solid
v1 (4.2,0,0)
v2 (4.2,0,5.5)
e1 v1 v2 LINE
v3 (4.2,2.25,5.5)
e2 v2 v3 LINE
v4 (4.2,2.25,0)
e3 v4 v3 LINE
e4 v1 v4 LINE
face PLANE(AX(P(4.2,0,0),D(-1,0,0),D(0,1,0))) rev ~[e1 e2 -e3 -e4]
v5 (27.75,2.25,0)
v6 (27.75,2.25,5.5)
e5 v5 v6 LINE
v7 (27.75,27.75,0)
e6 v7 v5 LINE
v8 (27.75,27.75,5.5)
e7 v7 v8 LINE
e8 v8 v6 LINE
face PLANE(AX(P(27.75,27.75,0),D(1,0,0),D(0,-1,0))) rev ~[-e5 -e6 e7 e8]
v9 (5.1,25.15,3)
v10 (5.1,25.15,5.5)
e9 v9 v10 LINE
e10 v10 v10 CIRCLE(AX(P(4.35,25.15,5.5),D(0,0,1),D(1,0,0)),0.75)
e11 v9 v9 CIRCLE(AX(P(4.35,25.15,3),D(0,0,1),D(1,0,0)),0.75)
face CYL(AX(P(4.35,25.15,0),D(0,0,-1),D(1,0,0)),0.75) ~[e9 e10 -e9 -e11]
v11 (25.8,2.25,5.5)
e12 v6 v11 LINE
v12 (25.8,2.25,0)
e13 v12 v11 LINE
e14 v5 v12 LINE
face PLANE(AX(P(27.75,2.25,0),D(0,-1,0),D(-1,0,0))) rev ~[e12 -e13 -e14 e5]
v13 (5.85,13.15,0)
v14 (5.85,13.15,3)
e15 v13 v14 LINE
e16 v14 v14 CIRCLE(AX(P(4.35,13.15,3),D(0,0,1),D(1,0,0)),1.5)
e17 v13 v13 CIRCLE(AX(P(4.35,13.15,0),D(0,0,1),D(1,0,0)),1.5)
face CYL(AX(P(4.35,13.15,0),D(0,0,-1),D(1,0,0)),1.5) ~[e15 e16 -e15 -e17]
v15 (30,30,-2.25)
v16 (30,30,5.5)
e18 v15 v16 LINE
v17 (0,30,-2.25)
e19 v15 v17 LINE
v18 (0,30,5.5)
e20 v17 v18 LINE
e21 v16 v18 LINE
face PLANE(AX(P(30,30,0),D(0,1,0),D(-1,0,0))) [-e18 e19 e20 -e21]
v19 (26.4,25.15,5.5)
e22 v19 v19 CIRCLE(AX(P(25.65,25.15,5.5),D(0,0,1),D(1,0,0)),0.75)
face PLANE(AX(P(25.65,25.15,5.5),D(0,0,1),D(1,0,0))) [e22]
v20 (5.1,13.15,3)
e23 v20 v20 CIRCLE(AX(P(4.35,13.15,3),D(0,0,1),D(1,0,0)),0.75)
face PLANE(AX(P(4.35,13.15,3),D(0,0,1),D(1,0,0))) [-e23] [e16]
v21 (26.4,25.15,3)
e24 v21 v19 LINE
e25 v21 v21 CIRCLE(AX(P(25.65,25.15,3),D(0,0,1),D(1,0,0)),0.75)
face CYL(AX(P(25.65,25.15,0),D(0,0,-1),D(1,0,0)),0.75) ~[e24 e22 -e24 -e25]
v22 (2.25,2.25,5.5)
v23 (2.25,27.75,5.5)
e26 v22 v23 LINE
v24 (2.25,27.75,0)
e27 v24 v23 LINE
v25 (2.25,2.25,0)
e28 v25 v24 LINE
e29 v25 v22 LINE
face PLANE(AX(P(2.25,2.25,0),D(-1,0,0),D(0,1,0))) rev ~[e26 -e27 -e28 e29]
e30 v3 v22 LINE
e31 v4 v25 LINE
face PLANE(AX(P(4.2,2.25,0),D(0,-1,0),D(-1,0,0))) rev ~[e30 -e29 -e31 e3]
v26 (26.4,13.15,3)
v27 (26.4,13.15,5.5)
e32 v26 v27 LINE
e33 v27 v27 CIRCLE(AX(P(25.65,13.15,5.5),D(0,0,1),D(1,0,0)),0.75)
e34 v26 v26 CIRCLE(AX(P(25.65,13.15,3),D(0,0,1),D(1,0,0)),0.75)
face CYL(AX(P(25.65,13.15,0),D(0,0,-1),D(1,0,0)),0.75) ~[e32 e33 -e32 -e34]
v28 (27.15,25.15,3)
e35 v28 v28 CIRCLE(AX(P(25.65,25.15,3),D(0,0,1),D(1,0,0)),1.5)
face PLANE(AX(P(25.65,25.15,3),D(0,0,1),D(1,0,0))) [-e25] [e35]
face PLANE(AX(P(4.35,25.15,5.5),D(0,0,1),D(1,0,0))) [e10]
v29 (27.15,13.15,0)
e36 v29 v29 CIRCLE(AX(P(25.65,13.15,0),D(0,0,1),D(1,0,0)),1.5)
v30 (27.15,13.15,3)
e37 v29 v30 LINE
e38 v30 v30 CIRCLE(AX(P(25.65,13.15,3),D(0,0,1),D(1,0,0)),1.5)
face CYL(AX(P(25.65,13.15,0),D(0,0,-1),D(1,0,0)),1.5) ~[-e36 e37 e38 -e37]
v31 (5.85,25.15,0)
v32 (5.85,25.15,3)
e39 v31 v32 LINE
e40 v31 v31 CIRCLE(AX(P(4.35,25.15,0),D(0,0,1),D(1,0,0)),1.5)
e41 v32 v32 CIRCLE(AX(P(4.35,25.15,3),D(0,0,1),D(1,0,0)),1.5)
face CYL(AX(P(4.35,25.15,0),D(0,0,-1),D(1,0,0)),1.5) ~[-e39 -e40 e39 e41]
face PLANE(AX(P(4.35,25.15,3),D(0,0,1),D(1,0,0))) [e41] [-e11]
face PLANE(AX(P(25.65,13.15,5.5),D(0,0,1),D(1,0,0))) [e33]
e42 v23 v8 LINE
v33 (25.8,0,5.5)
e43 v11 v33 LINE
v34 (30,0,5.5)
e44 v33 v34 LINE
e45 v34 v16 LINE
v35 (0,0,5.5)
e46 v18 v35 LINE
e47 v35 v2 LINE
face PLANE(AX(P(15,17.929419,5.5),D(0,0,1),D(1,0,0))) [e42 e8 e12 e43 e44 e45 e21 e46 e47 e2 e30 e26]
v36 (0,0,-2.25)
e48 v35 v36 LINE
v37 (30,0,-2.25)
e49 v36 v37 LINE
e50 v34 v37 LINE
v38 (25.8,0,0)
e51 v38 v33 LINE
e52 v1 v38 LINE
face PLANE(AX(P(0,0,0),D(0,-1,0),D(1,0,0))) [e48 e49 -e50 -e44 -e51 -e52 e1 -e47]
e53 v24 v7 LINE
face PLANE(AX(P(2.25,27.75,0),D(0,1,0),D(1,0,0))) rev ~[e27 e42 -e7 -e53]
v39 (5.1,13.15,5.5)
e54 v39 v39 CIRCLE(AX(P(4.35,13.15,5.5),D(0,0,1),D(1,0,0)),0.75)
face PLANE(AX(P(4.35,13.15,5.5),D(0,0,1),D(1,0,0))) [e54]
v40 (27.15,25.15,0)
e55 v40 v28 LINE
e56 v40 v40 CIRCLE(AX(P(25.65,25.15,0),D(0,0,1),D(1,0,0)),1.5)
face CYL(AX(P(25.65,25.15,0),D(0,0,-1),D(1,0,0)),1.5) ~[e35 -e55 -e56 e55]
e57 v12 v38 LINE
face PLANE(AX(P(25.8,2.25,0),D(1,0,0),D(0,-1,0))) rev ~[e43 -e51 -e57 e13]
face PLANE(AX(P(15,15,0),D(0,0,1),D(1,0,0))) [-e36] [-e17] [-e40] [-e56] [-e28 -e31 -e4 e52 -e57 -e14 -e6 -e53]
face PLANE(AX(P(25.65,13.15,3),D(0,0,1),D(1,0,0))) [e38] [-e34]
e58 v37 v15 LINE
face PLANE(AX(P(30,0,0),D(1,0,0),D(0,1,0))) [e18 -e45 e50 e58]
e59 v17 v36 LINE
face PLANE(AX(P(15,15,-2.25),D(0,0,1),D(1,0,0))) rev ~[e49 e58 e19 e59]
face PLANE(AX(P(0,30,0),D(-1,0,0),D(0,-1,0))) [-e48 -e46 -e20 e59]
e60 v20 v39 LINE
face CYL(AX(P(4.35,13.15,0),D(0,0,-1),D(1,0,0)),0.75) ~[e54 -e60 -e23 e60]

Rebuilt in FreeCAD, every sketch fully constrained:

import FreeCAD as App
import Part
import Sketcher
from FreeCAD import Vector
Q = App.Units.Quantity

doc = App.newDocument("Part")
body = doc.addObject("PartDesign::Body", "Body")

# Sketch on XY plane
sketch1 = body.newObject("Sketcher::SketchObject", "Sketch")
sketch1.AttachmentSupport = (doc.getObject("XY_Plane"), [""])
sketch1.MapMode = "FlatFace"
sketch1.addGeometry([
    Part.LineSegment(Vector(0, 30, 0), Vector(0, 0, 0)),  # 0
    Part.LineSegment(Vector(0, 0, 0), Vector(4.2, 0, 0)),  # 1
    Part.LineSegment(Vector(4.2, 0, 0), Vector(4.2, 2.25, 0)),  # 2
    Part.LineSegment(Vector(4.2, 2.25, 0), Vector(2.25, 2.25, 0)),  # 3
    Part.LineSegment(Vector(2.25, 2.25, 0), Vector(2.25, 27.75, 0)),  # 4
    Part.LineSegment(Vector(2.25, 27.75, 0), Vector(27.75, 27.75, 0)),  # 5
    Part.LineSegment(Vector(27.75, 27.75, 0), Vector(27.75, 2.25, 0)),  # 6
    Part.LineSegment(Vector(27.75, 2.25, 0), Vector(25.8, 2.25, 0)),  # 7
    Part.LineSegment(Vector(25.8, 2.25, 0), Vector(25.8, 0, 0)),  # 8
    Part.LineSegment(Vector(25.8, 0, 0), Vector(30, 0, 0)),  # 9
    Part.LineSegment(Vector(30, 0, 0), Vector(30, 30, 0)),  # 10
    Part.LineSegment(Vector(30, 30, 0), Vector(0, 30, 0)),  # 11
], False)
sketch1.addConstraint([
    Sketcher.Constraint("Coincident", 0, 2, 1, 1),
    Sketcher.Constraint("Coincident", 1, 2, 2, 1),
    Sketcher.Constraint("Coincident", 2, 2, 3, 1),
    Sketcher.Constraint("Coincident", 3, 2, 4, 1),
    Sketcher.Constraint("Coincident", 4, 2, 5, 1),
    Sketcher.Constraint("Coincident", 5, 2, 6, 1),
    Sketcher.Constraint("Coincident", 6, 2, 7, 1),
    Sketcher.Constraint("Coincident", 7, 2, 8, 1),
    Sketcher.Constraint("Coincident", 8, 2, 9, 1),
    Sketcher.Constraint("Coincident", 9, 2, 10, 1),
    Sketcher.Constraint("Coincident", 10, 2, 11, 1),
    Sketcher.Constraint("Coincident", 11, 2, 0, 1),
    Sketcher.Constraint("Vertical", 0),
    Sketcher.Constraint("Horizontal", 1),
    Sketcher.Constraint("Vertical", 2),
    Sketcher.Constraint("Horizontal", 3),
    Sketcher.Constraint("Vertical", 4),
    Sketcher.Constraint("Horizontal", 5),
    Sketcher.Constraint("Vertical", 6),
    Sketcher.Constraint("Horizontal", 7),
    Sketcher.Constraint("Vertical", 8),
    Sketcher.Constraint("Horizontal", 9),
    Sketcher.Constraint("Vertical", 10),
    Sketcher.Constraint("Horizontal", 11),
    Sketcher.Constraint("Coincident", 0, 2, -1, 1),
    Sketcher.Constraint("PointOnObject", 8, 2, -1),
    Sketcher.Constraint("Horizontal", 3, 2, 6, 2),
    Sketcher.Constraint("Equal", 3, 7),
    Sketcher.Constraint("Equal", 1, 9),
    Sketcher.Constraint("Equal", 11, 0),
    Sketcher.Constraint("Equal", 5, 4),
    Sketcher.Constraint("DistanceX", 11, 2, 11, 1, Q("30 mm")),
    Sketcher.Constraint("DistanceX", 1, 1, 1, 2, Q("4.2 mm")),
    Sketcher.Constraint("DistanceX", 5, 1, 5, 2, Q("25.5 mm")),
    Sketcher.Constraint("DistanceY", 2, 1, 2, 2, Q("2.25 mm")),
])
pad1 = body.newObject("PartDesign::Pad", "Pad")
pad1.Profile = sketch1
pad1.Length = 5.5

# Sketch on XY plane
sketch2 = body.newObject("Sketcher::SketchObject", "Sketch001")
sketch2.AttachmentSupport = (doc.getObject("XY_Plane"), [""])
sketch2.MapMode = "FlatFace"
sketch2.addGeometry([
    Part.LineSegment(Vector(30, 0, 0), Vector(30, 30, 0)),
    Part.LineSegment(Vector(30, 30, 0), Vector(0, 30, 0)),
    Part.LineSegment(Vector(0, 30, 0), Vector(0, 0, 0)),
    Part.LineSegment(Vector(0, 0, 0), Vector(30, 0, 0)),
], False)
sketch2.addConstraint([
    Sketcher.Constraint("Coincident", 0, 2, 1, 1),
    Sketcher.Constraint("Coincident", 1, 2, 2, 1),
    Sketcher.Constraint("Coincident", 2, 2, 3, 1),
    Sketcher.Constraint("Coincident", 3, 2, 0, 1),
    Sketcher.Constraint("Vertical", 0),
    Sketcher.Constraint("Horizontal", 1),
    Sketcher.Constraint("Vertical", 2),
    Sketcher.Constraint("Horizontal", 3),
    Sketcher.Constraint("Coincident", 2, 2, -1, 1),
    Sketcher.Constraint("Equal", 3, 0),
    Sketcher.Constraint("DistanceX", 1, 2, 1, 1, Q("30 mm")),
])
pad2 = body.newObject("PartDesign::Pad", "Pad001")
pad2.Profile = sketch2
pad2.Length = 2.25
pad2.Reversed = True

# Sketch on XY plane
sketch3 = body.newObject("Sketcher::SketchObject", "Sketch002")
sketch3.AttachmentSupport = (doc.getObject("XY_Plane"), [""])
sketch3.MapMode = "FlatFace"
sketch3.addGeometry([
    Part.Circle(Vector(25.65, 25.15, 0), Vector(0, 0, 1), 1.5),  # 0
    Part.Circle(Vector(25.65, 25.15, 0), Vector(0, 0, 1), 0.75),  # 1
    Part.Circle(Vector(25.65, 13.15, 0), Vector(0, 0, 1), 1.5),  # 2
    Part.Circle(Vector(25.65, 13.15, 0), Vector(0, 0, 1), 0.75),  # 3
    Part.Circle(Vector(4.35, 25.15, 0), Vector(0, 0, 1), 1.5),  # 4
    Part.Circle(Vector(4.35, 25.15, 0), Vector(0, 0, 1), 0.75),  # 5
    Part.Circle(Vector(4.35, 13.15, 0), Vector(0, 0, 1), 1.5),  # 6
    Part.Circle(Vector(4.35, 13.15, 0), Vector(0, 0, 1), 0.75),  # 7
], False)
sketch3.addConstraint([
    Sketcher.Constraint("Coincident", 1, 3, 0, 3),
    Sketcher.Constraint("Coincident", 3, 3, 2, 3),
    Sketcher.Constraint("Coincident", 5, 3, 4, 3),
    Sketcher.Constraint("Coincident", 7, 3, 6, 3),
    Sketcher.Constraint("Equal", 0, 2),
    Sketcher.Constraint("Equal", 1, 3),
    Sketcher.Constraint("Equal", 2, 4),
    Sketcher.Constraint("Equal", 3, 5),
    Sketcher.Constraint("Equal", 4, 6),
    Sketcher.Constraint("Equal", 5, 7),
    Sketcher.Constraint("Horizontal", 1, 3, 4, 3),
    Sketcher.Constraint("Horizontal", 3, 3, 6, 3),
    Sketcher.Constraint("Vertical", 1, 3, 2, 3),
    Sketcher.Constraint("Vertical", 5, 3, 6, 3),
    Sketcher.Constraint("Diameter", 0, Q("3 mm")),
    Sketcher.Constraint("Diameter", 1, Q("1.5 mm")),
    Sketcher.Constraint("DistanceY", 2, 3, 0, 3, Q("12 mm")),
    Sketcher.Constraint("DistanceX", 4, 3, 0, 3, Q("21.3 mm")),
    Sketcher.Constraint("DistanceX", -1, 1, 0, 3, Q("25.65 mm")),
    Sketcher.Constraint("DistanceY", -1, 1, 0, 3, Q("25.15 mm")),
])
pad3 = body.newObject("PartDesign::Pad", "Pad002")
pad3.Profile = sketch3
pad3.Length = 3

# Sketch on XY plane
sketch4 = body.newObject("Sketcher::SketchObject", "Sketch003")
sketch4.AttachmentSupport = (doc.getObject("XY_Plane"), [""])
sketch4.MapMode = "FlatFace"
sketch4.addGeometry([
    Part.Circle(Vector(4.35, 25.15, 0), Vector(0, 0, 1), 0.75),
    Part.Circle(Vector(25.65, 25.15, 0), Vector(0, 0, 1), 0.75),
    Part.Circle(Vector(25.65, 13.15, 0), Vector(0, 0, 1), 0.75),
    Part.Circle(Vector(4.35, 13.15, 0), Vector(0, 0, 1), 0.75),
], False)
sketch4.addConstraint([
    Sketcher.Constraint("Equal", 0, 1),
    Sketcher.Constraint("Equal", 1, 2),
    Sketcher.Constraint("Equal", 2, 3),
    Sketcher.Constraint("Horizontal", 0, 3, 1, 3),
    Sketcher.Constraint("Horizontal", 2, 3, 3, 3),
    Sketcher.Constraint("Vertical", 1, 3, 2, 3),
    Sketcher.Constraint("Vertical", 0, 3, 3, 3),
    Sketcher.Constraint("Diameter", 0, Q("1.5 mm")),
    Sketcher.Constraint("DistanceY", 2, 3, 1, 3, Q("12 mm")),
    Sketcher.Constraint("DistanceX", 0, 3, 1, 3, Q("21.3 mm")),
    Sketcher.Constraint("DistanceX", -1, 1, 0, 3, Q("4.35 mm")),
    Sketcher.Constraint("DistanceY", -1, 1, 0, 3, Q("25.15 mm")),
])
pad4 = body.newObject("PartDesign::Pad", "Pad003")
pad4.Profile = sketch4
pad4.Length = 5.5

doc.recompute()
